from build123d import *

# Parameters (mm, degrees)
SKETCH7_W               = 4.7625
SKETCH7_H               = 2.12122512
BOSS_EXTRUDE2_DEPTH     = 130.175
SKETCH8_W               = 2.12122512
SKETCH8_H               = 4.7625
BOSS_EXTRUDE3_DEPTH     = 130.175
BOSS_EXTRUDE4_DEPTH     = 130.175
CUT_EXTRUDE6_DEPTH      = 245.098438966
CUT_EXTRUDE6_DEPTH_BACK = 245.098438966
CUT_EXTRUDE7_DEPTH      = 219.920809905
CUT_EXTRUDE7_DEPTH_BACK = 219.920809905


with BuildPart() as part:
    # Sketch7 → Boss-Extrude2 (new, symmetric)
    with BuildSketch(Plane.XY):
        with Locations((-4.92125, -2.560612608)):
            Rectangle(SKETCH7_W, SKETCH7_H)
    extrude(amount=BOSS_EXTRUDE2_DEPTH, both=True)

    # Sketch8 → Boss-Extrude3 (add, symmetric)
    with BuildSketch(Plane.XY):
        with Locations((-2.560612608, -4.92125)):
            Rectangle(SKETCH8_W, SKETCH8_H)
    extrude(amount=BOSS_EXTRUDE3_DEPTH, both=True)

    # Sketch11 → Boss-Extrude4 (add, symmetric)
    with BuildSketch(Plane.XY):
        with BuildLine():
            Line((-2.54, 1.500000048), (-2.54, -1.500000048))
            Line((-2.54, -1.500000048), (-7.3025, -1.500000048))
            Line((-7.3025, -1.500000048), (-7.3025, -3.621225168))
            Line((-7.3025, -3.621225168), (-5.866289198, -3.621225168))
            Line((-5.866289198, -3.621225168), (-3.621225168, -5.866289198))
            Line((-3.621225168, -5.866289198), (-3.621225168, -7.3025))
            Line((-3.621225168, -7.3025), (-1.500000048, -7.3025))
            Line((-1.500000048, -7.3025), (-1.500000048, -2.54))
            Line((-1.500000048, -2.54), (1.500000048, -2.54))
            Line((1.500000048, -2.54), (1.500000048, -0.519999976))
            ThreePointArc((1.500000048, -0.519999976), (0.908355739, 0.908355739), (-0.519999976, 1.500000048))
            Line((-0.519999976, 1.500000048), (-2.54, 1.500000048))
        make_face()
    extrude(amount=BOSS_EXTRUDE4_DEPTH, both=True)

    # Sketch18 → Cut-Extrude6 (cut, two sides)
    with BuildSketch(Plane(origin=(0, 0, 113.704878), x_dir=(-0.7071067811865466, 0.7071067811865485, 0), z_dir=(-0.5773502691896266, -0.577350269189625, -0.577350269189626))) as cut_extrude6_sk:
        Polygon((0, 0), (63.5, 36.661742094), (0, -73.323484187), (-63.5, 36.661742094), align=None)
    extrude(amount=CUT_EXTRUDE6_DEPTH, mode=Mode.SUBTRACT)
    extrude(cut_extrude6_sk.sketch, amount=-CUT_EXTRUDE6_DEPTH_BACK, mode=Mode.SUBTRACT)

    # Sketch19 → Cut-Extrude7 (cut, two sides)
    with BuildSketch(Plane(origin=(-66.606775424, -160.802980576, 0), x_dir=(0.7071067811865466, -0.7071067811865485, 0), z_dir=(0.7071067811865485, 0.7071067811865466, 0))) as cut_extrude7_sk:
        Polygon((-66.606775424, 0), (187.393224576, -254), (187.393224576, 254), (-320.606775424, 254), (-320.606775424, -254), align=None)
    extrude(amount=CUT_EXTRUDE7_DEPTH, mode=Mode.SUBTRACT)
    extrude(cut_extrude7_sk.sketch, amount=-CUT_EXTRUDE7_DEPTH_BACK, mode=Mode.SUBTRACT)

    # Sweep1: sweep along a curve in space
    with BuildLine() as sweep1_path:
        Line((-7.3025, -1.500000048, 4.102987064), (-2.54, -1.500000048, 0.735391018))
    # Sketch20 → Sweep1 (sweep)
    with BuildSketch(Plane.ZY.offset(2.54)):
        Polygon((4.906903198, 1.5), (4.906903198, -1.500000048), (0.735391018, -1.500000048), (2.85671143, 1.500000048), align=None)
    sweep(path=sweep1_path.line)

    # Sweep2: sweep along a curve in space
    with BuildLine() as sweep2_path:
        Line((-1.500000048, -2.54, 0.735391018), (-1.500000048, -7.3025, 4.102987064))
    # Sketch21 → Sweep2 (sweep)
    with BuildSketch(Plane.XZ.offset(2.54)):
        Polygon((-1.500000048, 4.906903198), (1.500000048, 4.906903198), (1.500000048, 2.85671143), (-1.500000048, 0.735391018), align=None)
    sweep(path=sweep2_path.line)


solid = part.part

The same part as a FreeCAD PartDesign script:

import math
import FreeCAD as App
import Part
import Sketcher

V = App.Vector
Q = App.Units.Quantity


def add_polygon(sketch, points):
    """Adds a closed chain of lines whose ends are joined by coincident constraints."""
    first, n = sketch.GeometryCount, len(points)
    for a, b in zip(points, points[1:] + points[:1]):
        sketch.addGeometry(Part.LineSegment(App.Vector(*a, 0), App.Vector(*b, 0)), False)
    for i in range(n):
        sketch.addConstraint(Sketcher.Constraint("Coincident", first + i, 2, first + (i + 1) % n, 1))

doc = App.newDocument("Part")
body = doc.addObject("PartDesign::Body", "Body")

# Sketch on XY plane
sketch1 = body.newObject("Sketcher::SketchObject", "Sketch")
sketch1.AttachmentSupport = (doc.getObject("XY_Plane"), [""])
sketch1.MapMode = "FlatFace"
add_polygon(sketch1, [(-7.3025, -1.5), (-7.3025, -3.621225), (-2.54, -3.621225), (-2.54, -1.5)])  # lines 0-3
sketch1.addConstraint([
    Sketcher.Constraint("Vertical", 0),
    Sketcher.Constraint("Horizontal", 1),
    Sketcher.Constraint("Vertical", 2),
    Sketcher.Constraint("Horizontal", 3),
    Sketcher.Constraint("DistanceX", 1, 2, -1, 1, Q("0.1 in")),
    Sketcher.Constraint("DistanceX", 1, 1, 1, 2, Q("0.1875 in")),
    Sketcher.Constraint("DistanceY", 2, 2, -1, 1, Q("1.5 mm")),
    Sketcher.Constraint("DistanceY", 0, 2, 0, 1, Q("2.121225 mm")),
])
pad1 = body.newObject("PartDesign::Pad", "Pad")
pad1.Profile = sketch1
pad1.Length = Q("10.25 in")
pad1.Midplane = True

# Sketch on XY plane
sketch2 = body.newObject("Sketcher::SketchObject", "Sketch001")
sketch2.AttachmentSupport = (doc.getObject("XY_Plane"), [""])
sketch2.MapMode = "FlatFace"
add_polygon(sketch2, [(-3.621225, -2.54), (-3.621225, -7.3025), (-1.5, -7.3025), (-1.5, -2.54)])  # lines 0-3
sketch2.addConstraint([
    Sketcher.Constraint("Vertical", 0),
    Sketcher.Constraint("Horizontal", 1),
    Sketcher.Constraint("Vertical", 2),
    Sketcher.Constraint("Horizontal", 3),
    Sketcher.Constraint("DistanceY", 2, 2, -1, 1, Q("0.1 in")),
    Sketcher.Constraint("DistanceY", 0, 2, 0, 1, Q("0.1875 in")),
    Sketcher.Constraint("DistanceX", 1, 2, -1, 1, Q("1.5 mm")),
    Sketcher.Constraint("DistanceX", 1, 1, 1, 2, Q("2.121225 mm")),
])
pad2 = body.newObject("PartDesign::Pad", "Pad001")
pad2.Profile = sketch2
pad2.Length = Q("10.25 in")
pad2.Midplane = True

# Sketch on XY plane
sketch3 = body.newObject("Sketcher::SketchObject", "Sketch002")
sketch3.AttachmentSupport = (doc.getObject("XY_Plane"), [""])
sketch3.MapMode = "FlatFace"
sketch3.addGeometry([
    Part.LineSegment(V(-2.54, 1.5, 0), V(-2.54, -1.5, 0)),  # 0
    Part.LineSegment(V(-2.54, -1.5, 0), V(-7.3025, -1.5, 0)),  # 1
    Part.LineSegment(V(-7.3025, -1.5, 0), V(-7.3025, -3.621225, 0)),  # 2
    Part.LineSegment(V(-7.3025, -3.621225, 0), V(-5.866289, -3.621225, 0)),  # 3
    Part.LineSegment(V(-5.866289, -3.621225, 0), V(-3.621225, -5.866289, 0)),  # 4
    Part.LineSegment(V(-3.621225, -5.866289, 0), V(-3.621225, -7.3025, 0)),  # 5
    Part.LineSegment(V(-3.621225, -7.3025, 0), V(-1.5, -7.3025, 0)),  # 6
    Part.LineSegment(V(-1.5, -7.3025, 0), V(-1.5, -2.54, 0)),  # 7
    Part.LineSegment(V(-1.5, -2.54, 0), V(1.5, -2.54, 0)),  # 8
    Part.LineSegment(V(1.5, -2.54, 0), V(1.5, -0.52, 0)),  # 9
    Part.ArcOfCircle(Part.Circle(V(-0.52, -0.52, 0), V(0, 0, 1), 2.02), math.radians(0), math.radians(90)),  # 10
    Part.LineSegment(V(-0.52, 1.5, 0), V(-2.54, 1.5, 0)),  # 11
], False)
sketch3.addConstraint([
    Sketcher.Constraint("Coincident", 0, 2, 1, 1),
    Sketcher.Constraint("Coincident", 1, 2, 2, 1),
    Sketcher.Constraint("Coincident", 2, 2, 3, 1),
    Sketcher.Constraint("Coincident", 3, 2, 4, 1),
    Sketcher.Constraint("Coincident", 4, 2, 5, 1),
    Sketcher.Constraint("Coincident", 5, 2, 6, 1),
    Sketcher.Constraint("Coincident", 6, 2, 7, 1),
    Sketcher.Constraint("Coincident", 7, 2, 8, 1),
    Sketcher.Constraint("Coincident", 8, 2, 9, 1),
    Sketcher.Constraint("Tangent", 9, 2, 10, 1),
    Sketcher.Constraint("Tangent", 10, 2, 11, 1),
    Sketcher.Constraint("Coincident", 11, 2, 0, 1),
    Sketcher.Constraint("Vertical", 0),
    Sketcher.Constraint("Horizontal", 1),
    Sketcher.Constraint("Vertical", 2),
    Sketcher.Constraint("Horizontal", 3),
    Sketcher.Constraint("Vertical", 5),
    Sketcher.Constraint("Horizontal", 6),
    Sketcher.Constraint("Vertical", 7),
    Sketcher.Constraint("Horizontal", 8),
    Sketcher.Constraint("Vertical", 9),
    Sketcher.Constraint("Horizontal", 11),
    Sketcher.Constraint("Equal", 8, 0),
    Sketcher.Constraint("Equal", 6, 2),
    Sketcher.Constraint("Equal", 3, 5),
    Sketcher.Constraint("Equal", 1, 7),
    Sketcher.Constraint("Equal", 11, 9),
    Sketcher.Constraint("DistanceX", 0, 2, -1, 1, Q("0.1 in")),
    Sketcher.Constraint("DistanceY", 7, 2, -1, 1, Q("0.1 in")),
    Sketcher.Constraint("DistanceX", 1, 2, 1, 1, Q("0.1875 in")),
    Sketcher.Constraint("Radius", 10, Q("2.02 mm")),
    Sketcher.Constraint("Distance", 4, Q("0.125 in")),
    Sketcher.Constraint("DistanceX", 8, 1, 8, 2, Q("3 mm")),
    Sketcher.Constraint("DistanceX", 11, 2, 11, 1, Q("2.02 mm")),
    Sketcher.Constraint("DistanceX", 3, 1, 3, 2, Q("1.436211 mm")),
])
pad3 = body.newObject("PartDesign::Pad", "Pad002")
pad3.Profile = sketch3
pad3.Length = Q("10.25 in")
pad3.Midplane = True

# Sketch on an angled plane
sketch4 = body.newObject("Sketcher::SketchObject", "Sketch003")
sketch4.Placement = App.Placement(V(0, 0, 113.704878), App.Rotation(V(-0.707106781, 0.707106781, 0), V(0.40824829, 0.40824829, -0.81649658), V(-0.577350269, -0.577350269, -0.577350269), "ZXY"))
add_polygon(sketch4, [(63.5, 36.661742), (0, 0), (-63.5, 36.661742), (0, -73.323484)])  # lines 0-3
sketch4.addConstraint([
    Sketcher.Constraint("Coincident", 0, 2, -1, 1),
    Sketcher.Constraint("Symmetric", 1, 2, 3, 2, -2),
    Sketcher.Constraint("PointOnObject", 2, 2, -2),
    Sketcher.Constraint("Perpendicular", 0, 2),
    Sketcher.Constraint("Distance", 2, Q("5 in")),
    Sketcher.Constraint("Angle", 0, Q("-150 deg")),
])
pocket1 = body.newObject("PartDesign::Pocket", "Pocket")
pocket1.Profile = sketch4
pocket1.Type = "ThroughAll"
pocket1.Midplane = True

# Sketch on an angled plane
sketch5 = body.newObject("Sketcher::SketchObject", "Sketch004")
sketch5.Placement = App.Placement(V(-66.606775, -160.802981, 0), App.Rotation(V(0.707106781, -0.707106781, 0), V(0, 0, -0.999999999), V(0.707106781, 0.707106781, 0), "ZXY"))
add_polygon(sketch5, [(-66.606775, 0), (187.393224, -254), (187.393224, 254), (-320.606775, 254), (-320.606775, -254)])  # lines 0-4
sketch5.addConstraint([
    Sketcher.Constraint("Vertical", 1),
    Sketcher.Constraint("Horizontal", 2),
    Sketcher.Constraint("Vertical", 3),
    Sketcher.Constraint("PointOnObject", 4, 2, -1),
    Sketcher.Constraint("Perpendicular", 0, 4),
    Sketcher.Constraint("Horizontal", 0, 2, 3, 2),
    Sketcher.Constraint("Equal", 2, 1),
    Sketcher.Constraint("Equal", 0, 4),
    Sketcher.Constraint("DistanceX", 2, 2, 2, 1, Q("20 in")),
    Sketcher.Constraint("DistanceX", -1, 1, 0, 2, Q("187.393224 mm")),
])
pocket2 = body.newObject("PartDesign::Pocket", "Pocket001")
pocket2.Profile = sketch5
pocket2.Type = "ThroughAll"
pocket2.Midplane = True

# Sketch on YZ plane
sketch6 = body.newObject("Sketcher::SketchObject", "Sketch005")
sketch6.AttachmentSupport = (doc.getObject("YZ_Plane"), [""])
sketch6.MapMode = "FlatFace"
sketch6.AttachmentOffset = App.Placement(V(0, 0, -0.1 * 25.4), App.Rotation())
add_polygon(sketch6, [(-1.5, 4.906903), (1.5, 4.906903), (1.5, 2.856711), (-1.5, 0.735391)])  # lines 0-3
sketch6.addConstraint([
    Sketcher.Constraint("Horizontal", 0),
    Sketcher.Constraint("Vertical", 1),
    Sketcher.Constraint("Vertical", 3),
    Sketcher.Constraint("DistanceX", 0, 1, 0, 2, Q("3 mm")),
    Sketcher.Constraint("DistanceY", 1, 2, 1, 1, Q("2.050192 mm")),
    Sketcher.Constraint("DistanceX", -1, 1, 0, 2, Q("1.5 mm")),
    Sketcher.Constraint("DistanceY", 3, 1, 3, 2, Q("4.171512 mm")),
    Sketcher.Constraint("DistanceY", -1, 1, 1, 2, Q("2.856711 mm")),
])

# Sketch on an angled plane
sketch7 = body.newObject("Sketcher::SketchObject", "Sketch006")
sketch7.Placement = App.Placement(V(-0.5, 0, -0.707107), App.Rotation(V(0.816496581, 0, -0.577350269), V(0, 1, 0), V(0.577350269, 0, 0.816496581), "ZXY"))
sketch7.addGeometry(Part.LineSegment(V(-8.331327, -1.5, 0), V(-2.49848, -1.5, 0)), False)
sketch7.addConstraint([
    Sketcher.Constraint("Horizontal", 0),
    Sketcher.Constraint("DistanceY", 0, 1, -1, 1, Q("1.5 mm")),
    Sketcher.Constraint("DistanceX", 0, 1, 0, 2, Q("5.832847 mm")),
    Sketcher.Constraint("DistanceX", 0, 2, -1, 1, Q("2.49848 mm")),
])
doc.recompute()

additivepipe = body.newObject("PartDesign::AdditivePipe", "AdditivePipe")
additivepipe.Profile = sketch6
additivepipe.Spine = (sketch7, ["Edge1"])

# Sketch on XZ plane
sketch8 = body.newObject("Sketcher::SketchObject", "Sketch007")
sketch8.AttachmentSupport = (doc.getObject("XZ_Plane"), [""])
sketch8.MapMode = "FlatFace"
sketch8.AttachmentOffset = App.Placement(V(0, 0, 0.1 * 25.4), App.Rotation())
add_polygon(sketch8, [(1.5, 4.906903), (-1.5, 4.906903), (-1.5, 0.735391), (1.5, 2.856711)])  # lines 0-3
sketch8.addConstraint([
    Sketcher.Constraint("Horizontal", 0),
    Sketcher.Constraint("Vertical", 1),
    Sketcher.Constraint("Vertical", 3),
    Sketcher.Constraint("DistanceX", 0, 2, 0, 1, Q("3 mm")),
    Sketcher.Constraint("DistanceY", 3, 1, 3, 2, Q("2.050192 mm")),
    Sketcher.Constraint("DistanceX", 0, 2, -1, 1, Q("1.5 mm")),
    Sketcher.Constraint("DistanceY", 1, 2, 1, 1, Q("4.171512 mm")),
    Sketcher.Constraint("DistanceY", -1, 1, 1, 2, Q("0.735391 mm")),
])

# Sketch on an angled plane
sketch9 = body.newObject("Sketcher::SketchObject", "Sketch008")
sketch9.Placement = App.Placement(V(0, -0.5, -0.707107), App.Rotation(V(0, -0.816496581, 0.577350269), V(1, 0, 0), V(0, 0.577350269, 0.816496581), "ZXY"))
sketch9.addGeometry(Part.LineSegment(V(2.49848, -1.5, 0), V(8.331327, -1.5, 0)), False)
sketch9.addConstraint([
    Sketcher.Constraint("Horizontal", 0),
    Sketcher.Constraint("DistanceY", 0, 1, -1, 1, Q("1.5 mm")),
    Sketcher.Constraint("DistanceX", 0, 1, 0, 2, Q("5.832847 mm")),
    Sketcher.Constraint("DistanceX", -1, 1, 0, 1, Q("2.49848 mm")),
])
doc.recompute()

additivepipe2 = body.newObject("PartDesign::AdditivePipe", "AdditivePipe001")
additivepipe2.Profile = sketch8
additivepipe2.Spine = (sketch9, ["Edge1"])

doc.recompute()
